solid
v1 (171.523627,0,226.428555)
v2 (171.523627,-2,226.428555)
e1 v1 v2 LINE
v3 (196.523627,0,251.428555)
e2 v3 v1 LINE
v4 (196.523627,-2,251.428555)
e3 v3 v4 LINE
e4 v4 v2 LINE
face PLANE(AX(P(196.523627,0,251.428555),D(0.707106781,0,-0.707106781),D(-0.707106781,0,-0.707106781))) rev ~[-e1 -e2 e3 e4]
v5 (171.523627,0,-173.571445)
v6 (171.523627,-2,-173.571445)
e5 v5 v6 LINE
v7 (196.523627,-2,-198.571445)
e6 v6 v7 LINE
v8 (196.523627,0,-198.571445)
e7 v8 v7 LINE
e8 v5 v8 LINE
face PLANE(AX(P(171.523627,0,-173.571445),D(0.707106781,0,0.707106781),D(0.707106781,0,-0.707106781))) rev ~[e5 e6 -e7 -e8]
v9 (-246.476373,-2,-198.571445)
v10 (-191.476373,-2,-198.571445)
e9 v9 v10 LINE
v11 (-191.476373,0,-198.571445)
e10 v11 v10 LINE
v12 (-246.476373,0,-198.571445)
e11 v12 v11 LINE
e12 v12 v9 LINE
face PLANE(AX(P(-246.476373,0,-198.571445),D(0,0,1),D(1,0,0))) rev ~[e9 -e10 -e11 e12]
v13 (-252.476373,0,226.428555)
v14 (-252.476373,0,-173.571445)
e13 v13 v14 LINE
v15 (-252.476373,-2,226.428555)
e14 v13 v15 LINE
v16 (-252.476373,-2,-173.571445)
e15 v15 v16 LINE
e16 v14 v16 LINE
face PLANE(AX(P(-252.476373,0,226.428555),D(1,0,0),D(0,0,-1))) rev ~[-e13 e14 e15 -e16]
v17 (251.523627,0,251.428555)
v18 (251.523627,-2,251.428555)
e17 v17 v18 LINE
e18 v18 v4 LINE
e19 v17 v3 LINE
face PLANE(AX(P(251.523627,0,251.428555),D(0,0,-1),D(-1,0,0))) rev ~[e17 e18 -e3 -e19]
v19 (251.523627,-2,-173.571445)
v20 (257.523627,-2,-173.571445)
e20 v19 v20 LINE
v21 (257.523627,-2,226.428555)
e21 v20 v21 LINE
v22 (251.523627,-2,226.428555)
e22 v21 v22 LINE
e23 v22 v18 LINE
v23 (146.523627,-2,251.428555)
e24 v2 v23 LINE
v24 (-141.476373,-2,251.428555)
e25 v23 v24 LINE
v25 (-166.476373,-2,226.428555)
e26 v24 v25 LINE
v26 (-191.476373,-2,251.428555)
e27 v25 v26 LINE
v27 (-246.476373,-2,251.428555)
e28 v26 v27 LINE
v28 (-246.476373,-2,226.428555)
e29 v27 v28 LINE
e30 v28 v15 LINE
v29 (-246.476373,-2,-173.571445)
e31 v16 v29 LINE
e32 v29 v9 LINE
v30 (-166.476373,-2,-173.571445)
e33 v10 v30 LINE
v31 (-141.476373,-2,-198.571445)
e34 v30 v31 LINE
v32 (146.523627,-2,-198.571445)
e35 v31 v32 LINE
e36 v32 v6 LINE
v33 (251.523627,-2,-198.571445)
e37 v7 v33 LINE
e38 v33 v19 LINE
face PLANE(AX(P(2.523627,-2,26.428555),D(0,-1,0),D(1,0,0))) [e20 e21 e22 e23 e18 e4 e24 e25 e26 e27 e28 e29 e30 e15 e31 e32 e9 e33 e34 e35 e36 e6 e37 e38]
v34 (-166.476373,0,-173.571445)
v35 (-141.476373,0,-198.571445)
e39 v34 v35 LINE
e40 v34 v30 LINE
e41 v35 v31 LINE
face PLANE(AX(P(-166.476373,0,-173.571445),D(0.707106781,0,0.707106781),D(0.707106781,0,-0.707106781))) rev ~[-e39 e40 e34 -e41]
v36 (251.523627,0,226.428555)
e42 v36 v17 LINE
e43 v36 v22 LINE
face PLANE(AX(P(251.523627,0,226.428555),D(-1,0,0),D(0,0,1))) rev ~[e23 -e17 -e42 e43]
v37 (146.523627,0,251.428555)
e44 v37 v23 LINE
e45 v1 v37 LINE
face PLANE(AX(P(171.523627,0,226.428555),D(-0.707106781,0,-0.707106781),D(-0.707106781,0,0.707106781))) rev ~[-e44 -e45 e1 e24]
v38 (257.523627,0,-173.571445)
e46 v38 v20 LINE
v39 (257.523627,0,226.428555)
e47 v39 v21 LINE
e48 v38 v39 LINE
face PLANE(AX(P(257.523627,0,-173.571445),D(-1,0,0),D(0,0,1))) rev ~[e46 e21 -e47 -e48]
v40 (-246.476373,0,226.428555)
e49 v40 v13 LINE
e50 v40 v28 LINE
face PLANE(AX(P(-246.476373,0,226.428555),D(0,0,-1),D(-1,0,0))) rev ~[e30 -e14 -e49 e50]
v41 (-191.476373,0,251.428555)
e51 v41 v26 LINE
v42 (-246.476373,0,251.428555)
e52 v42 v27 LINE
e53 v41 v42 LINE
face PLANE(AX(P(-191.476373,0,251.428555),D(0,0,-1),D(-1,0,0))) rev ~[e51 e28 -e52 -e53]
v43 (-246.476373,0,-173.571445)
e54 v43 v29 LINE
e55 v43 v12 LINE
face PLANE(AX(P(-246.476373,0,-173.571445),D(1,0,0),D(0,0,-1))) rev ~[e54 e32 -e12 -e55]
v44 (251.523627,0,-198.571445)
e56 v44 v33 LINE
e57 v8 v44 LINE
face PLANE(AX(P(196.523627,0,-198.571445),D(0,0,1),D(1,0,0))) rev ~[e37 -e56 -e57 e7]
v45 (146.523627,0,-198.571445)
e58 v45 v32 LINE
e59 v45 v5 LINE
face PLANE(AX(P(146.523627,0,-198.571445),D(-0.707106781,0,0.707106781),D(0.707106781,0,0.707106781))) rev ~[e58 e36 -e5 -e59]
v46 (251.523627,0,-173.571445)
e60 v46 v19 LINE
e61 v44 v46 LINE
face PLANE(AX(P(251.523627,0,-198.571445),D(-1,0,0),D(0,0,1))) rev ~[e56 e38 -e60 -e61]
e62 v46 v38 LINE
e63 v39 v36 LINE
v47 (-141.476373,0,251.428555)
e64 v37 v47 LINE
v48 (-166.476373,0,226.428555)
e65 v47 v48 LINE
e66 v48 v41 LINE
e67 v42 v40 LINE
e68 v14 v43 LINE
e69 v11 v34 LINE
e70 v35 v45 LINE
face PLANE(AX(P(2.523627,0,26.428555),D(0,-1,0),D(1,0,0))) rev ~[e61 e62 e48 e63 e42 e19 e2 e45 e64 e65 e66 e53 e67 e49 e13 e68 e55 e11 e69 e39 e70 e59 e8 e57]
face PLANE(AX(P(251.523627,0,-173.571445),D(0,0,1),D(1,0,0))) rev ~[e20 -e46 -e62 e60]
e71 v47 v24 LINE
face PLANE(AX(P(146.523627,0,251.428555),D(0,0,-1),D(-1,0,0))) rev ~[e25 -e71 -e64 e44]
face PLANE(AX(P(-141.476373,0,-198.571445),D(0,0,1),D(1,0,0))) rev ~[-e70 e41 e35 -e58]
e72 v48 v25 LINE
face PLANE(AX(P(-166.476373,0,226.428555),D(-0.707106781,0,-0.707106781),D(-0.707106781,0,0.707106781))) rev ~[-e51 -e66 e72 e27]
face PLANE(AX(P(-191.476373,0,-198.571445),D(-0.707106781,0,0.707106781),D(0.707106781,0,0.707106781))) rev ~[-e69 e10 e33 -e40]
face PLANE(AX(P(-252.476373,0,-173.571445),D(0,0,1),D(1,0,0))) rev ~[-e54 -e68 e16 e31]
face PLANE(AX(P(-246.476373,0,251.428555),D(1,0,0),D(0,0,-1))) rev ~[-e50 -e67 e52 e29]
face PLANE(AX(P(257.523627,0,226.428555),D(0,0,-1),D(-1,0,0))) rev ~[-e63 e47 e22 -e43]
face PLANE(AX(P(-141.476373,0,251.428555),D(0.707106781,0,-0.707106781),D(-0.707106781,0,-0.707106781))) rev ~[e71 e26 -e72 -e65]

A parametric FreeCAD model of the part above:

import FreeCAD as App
import Part
import Sketcher

doc = App.newDocument("Part")
params = doc.addObject("Spreadsheet::Sheet", "Params")
for row, (alias, value) in enumerate([
    ("sketch1_width", "55 mm"),
    ("sketch1_width2", "6 mm"),
    ("sketch1_width3", "288 mm"),
    ("sketch1_height", "25 mm"),
    ("sketch1_height2", "400 mm"),
    ("pad1_length", "2 mm"),
], start=1):
    params.set(f"A{row}", alias)
    params.set(f"B{row}", "=" + value)
    params.setAlias(f"B{row}", alias)

body = doc.addObject("PartDesign::Body", "Body")

# Sketch on XZ plane
sketch1 = doc.addObject("Sketcher::SketchObject", "Sketch")
body.addObject(sketch1)
sketch1.AttachmentSupport = (doc.XZ_Plane, [""])
sketch1.MapMode = "FlatFace"
sketch1.addGeometry(Part.LineSegment(App.Vector(-191.476373, 251.428555, 0), App.Vector(-246.476373, 251.428555, 0)), False)
sketch1.addGeometry(Part.LineSegment(App.Vector(-246.476373, 251.428555, 0), App.Vector(-246.476373, 226.428555, 0)), False)
sketch1.addGeometry(Part.LineSegment(App.Vector(-246.476373, 226.428555, 0), App.Vector(-252.476373, 226.428555, 0)), False)
sketch1.addGeometry(Part.LineSegment(App.Vector(-252.476373, 226.428555, 0), App.Vector(-252.476373, -173.571445, 0)), False)
sketch1.addGeometry(Part.LineSegment(App.Vector(-252.476373, -173.571445, 0), App.Vector(-246.476373, -173.571445, 0)), False)
sketch1.addGeometry(Part.LineSegment(App.Vector(-246.476373, -173.571445, 0), App.Vector(-246.476373, -198.571445, 0)), False)
sketch1.addGeometry(Part.LineSegment(App.Vector(-246.476373, -198.571445, 0), App.Vector(-191.476373, -198.571445, 0)), False)
sketch1.addGeometry(Part.LineSegment(App.Vector(-191.476373, -198.571445, 0), App.Vector(-166.476373, -173.571445, 0)), False)
sketch1.addGeometry(Part.LineSegment(App.Vector(-166.476373, -173.571445, 0), App.Vector(-141.476373, -198.571445, 0)), False)
sketch1.addGeometry(Part.LineSegment(App.Vector(-141.476373, -198.571445, 0), App.Vector(146.523627, -198.571445, 0)), False)
sketch1.addGeometry(Part.LineSegment(App.Vector(146.523627, -198.571445, 0), App.Vector(171.523627, -173.571445, 0)), False)
sketch1.addGeometry(Part.LineSegment(App.Vector(171.523627, -173.571445, 0), App.Vector(196.523627, -198.571445, 0)), False)
sketch1.addGeometry(Part.LineSegment(App.Vector(196.523627, -198.571445, 0), App.Vector(251.523627, -198.571445, 0)), False)
sketch1.addGeometry(Part.LineSegment(App.Vector(251.523627, -198.571445, 0), App.Vector(251.523627, -173.571445, 0)), False)
sketch1.addGeometry(Part.LineSegment(App.Vector(251.523627, -173.571445, 0), App.Vector(257.523627, -173.571445, 0)), False)
sketch1.addGeometry(Part.LineSegment(App.Vector(257.523627, -173.571445, 0), App.Vector(257.523627, 226.428555, 0)), False)
sketch1.addGeometry(Part.LineSegment(App.Vector(257.523627, 226.428555, 0), App.Vector(251.523627, 226.428555, 0)), False)
sketch1.addGeometry(Part.LineSegment(App.Vector(251.523627, 226.428555, 0), App.Vector(251.523627, 251.428555, 0)), False)
sketch1.addGeometry(Part.LineSegment(App.Vector(251.523627, 251.428555, 0), App.Vector(196.523627, 251.428555, 0)), False)
sketch1.addGeometry(Part.LineSegment(App.Vector(196.523627, 251.428555, 0), App.Vector(171.523627, 226.428555, 0)), False)
sketch1.addGeometry(Part.LineSegment(App.Vector(171.523627, 226.428555, 0), App.Vector(146.523627, 251.428555, 0)), False)
sketch1.addGeometry(Part.LineSegment(App.Vector(146.523627, 251.428555, 0), App.Vector(-141.476373, 251.428555, 0)), False)
sketch1.addGeometry(Part.LineSegment(App.Vector(-141.476373, 251.428555, 0), App.Vector(-166.476373, 226.428555, 0)), False)
sketch1.addGeometry(Part.LineSegment(App.Vector(-166.476373, 226.428555, 0), App.Vector(-191.476373, 251.428555, 0)), False)
sketch1.addConstraint(Sketcher.Constraint("Coincident", 0, 2, 1, 1))
sketch1.addConstraint(Sketcher.Constraint("Coincident", 1, 2, 2, 1))
sketch1.addConstraint(Sketcher.Constraint("Coincident", 2, 2, 3, 1))
sketch1.addConstraint(Sketcher.Constraint("Coincident", 3, 2, 4, 1))
sketch1.addConstraint(Sketcher.Constraint("Coincident", 4, 2, 5, 1))
sketch1.addConstraint(Sketcher.Constraint("Coincident", 5, 2, 6, 1))
sketch1.addConstraint(Sketcher.Constraint("Coincident", 6, 2, 7, 1))
sketch1.addConstraint(Sketcher.Constraint("Coincident", 7, 2, 8, 1))
sketch1.addConstraint(Sketcher.Constraint("Coincident", 8, 2, 9, 1))
sketch1.addConstraint(Sketcher.Constraint("Coincident", 9, 2, 10, 1))
sketch1.addConstraint(Sketcher.Constraint("Coincident", 10, 2, 11, 1))
sketch1.addConstraint(Sketcher.Constraint("Coincident", 11, 2, 12, 1))
sketch1.addConstraint(Sketcher.Constraint("Coincident", 12, 2, 13, 1))
sketch1.addConstraint(Sketcher.Constraint("Coincident", 13, 2, 14, 1))
sketch1.addConstraint(Sketcher.Constraint("Coincident", 14, 2, 15, 1))
sketch1.addConstraint(Sketcher.Constraint("Coincident", 15, 2, 16, 1))
sketch1.addConstraint(Sketcher.Constraint("Coincident", 16, 2, 17, 1))
sketch1.addConstraint(Sketcher.Constraint("Coincident", 17, 2, 18, 1))
sketch1.addConstraint(Sketcher.Constraint("Coincident", 18, 2, 19, 1))
sketch1.addConstraint(Sketcher.Constraint("Coincident", 19, 2, 20, 1))
sketch1.addConstraint(Sketcher.Constraint("Coincident", 20, 2, 21, 1))
sketch1.addConstraint(Sketcher.Constraint("Coincident", 21, 2, 22, 1))
sketch1.addConstraint(Sketcher.Constraint("Coincident", 22, 2, 23, 1))
sketch1.addConstraint(Sketcher.Constraint("Coincident", 23, 2, 0, 1))
sketch1.addConstraint(Sketcher.Constraint("Horizontal", 0))
sketch1.addConstraint(Sketcher.Constraint("Vertical", 1))
sketch1.addConstraint(Sketcher.Constraint("Horizontal", 2))
sketch1.addConstraint(Sketcher.Constraint("Vertical", 3))
sketch1.addConstraint(Sketcher.Constraint("Horizontal", 4))
sketch1.addConstraint(Sketcher.Constraint("Vertical", 5))
sketch1.addConstraint(Sketcher.Constraint("Horizontal", 6))
sketch1.addConstraint(Sketcher.Constraint("Horizontal", 9))
sketch1.addConstraint(Sketcher.Constraint("Horizontal", 12))
sketch1.addConstraint(Sketcher.Constraint("Vertical", 13))
sketch1.addConstraint(Sketcher.Constraint("Horizontal", 14))
sketch1.addConstraint(Sketcher.Constraint("Vertical", 15))
sketch1.addConstraint(Sketcher.Constraint("Horizontal", 16))
sketch1.addConstraint(Sketcher.Constraint("Vertical", 17))
sketch1.addConstraint(Sketcher.Constraint("Horizontal", 18))
sketch1.addConstraint(Sketcher.Constraint("Horizontal", 21))
sketch1.addConstraint(Sketcher.Constraint("Perpendicular", 7, 8))
sketch1.addConstraint(Sketcher.Constraint("Perpendicular", 8, 10))
sketch1.addConstraint(Sketcher.Constraint("Perpendicular", 10, 11))
sketch1.addConstraint(Sketcher.Constraint("Perpendicular", 11, 19))
sketch1.addConstraint(Sketcher.Constraint("Perpendicular", 19, 20))
sketch1.addConstraint(Sketcher.Constraint("Perpendicular", 20, 22))
sketch1.addConstraint(Sketcher.Constraint("Perpendicular", 22, 23))
sketch1.addConstraint(Sketcher.Constraint("Horizontal", 4, 2, 7, 2))
sketch1.addConstraint(Sketcher.Constraint("Horizontal", 6, 2, 8, 2))
sketch1.addConstraint(Sketcher.Constraint("Horizontal", 7, 2, 10, 2))
sketch1.addConstraint(Sketcher.Constraint("Horizontal", 9, 2, 11, 2))
sketch1.addConstraint(Sketcher.Constraint("Horizontal", 10, 2, 13, 2))
sketch1.addConstraint(Sketcher.Constraint("Horizontal", 2, 2, 15, 2))
sketch1.addConstraint(Sketcher.Constraint("Horizontal", 0, 2, 17, 2))
sketch1.addConstraint(Sketcher.Constraint("Horizontal", 16, 2, 19, 2))
sketch1.addConstraint(Sketcher.Constraint("Horizontal", 18, 2, 20, 2))
sketch1.addConstraint(Sketcher.Constraint("Horizontal", 19, 2, 22, 2))
sketch1.addConstraint(Sketcher.Constraint("Vertical", 1, 2, 4, 2))
sketch1.addConstraint(Sketcher.Constraint("Vertical", 13, 2, 16, 2))
sketch1.addConstraint(Sketcher.Constraint("Vertical", 11, 2, 18, 2))
sketch1.addConstraint(Sketcher.Constraint("Vertical", 10, 2, 19, 2))
sketch1.addConstraint(Sketcher.Constraint("Vertical", 9, 2, 20, 2))
sketch1.addConstraint(Sketcher.Constraint("Vertical", 8, 2, 21, 2))
sketch1.addConstraint(Sketcher.Constraint("Equal", 6, 12))
sketch1.addConstraint(Sketcher.Constraint("Equal", 4, 14))
sketch1.addConstraint(Sketcher.Constraint("DistanceX", 0, 2, 0, 1, 55.0))
sketch1.addConstraint(Sketcher.Constraint("DistanceX", 2, 2, 2, 1, 6.0))
sketch1.addConstraint(Sketcher.Constraint("DistanceX", 9, 1, 9, 2, 288.0))
sketch1.addConstraint(Sketcher.Constraint("DistanceY", 1, 2, 1, 1, 25.0))
sketch1.addConstraint(Sketcher.Constraint("DistanceY", 3, 2, 3, 1, 400.0))
sketch1.addConstraint(Sketcher.Constraint("DistanceX", 0, 2, -1, 1, 246.476373))
sketch1.addConstraint(Sketcher.Constraint("DistanceY", -1, 1, 0, 2, 251.428555))
sketch1.setExpression("Constraints[65]", "Params.sketch1_width")
sketch1.setExpression("Constraints[66]", "Params.sketch1_width2")
sketch1.setExpression("Constraints[67]", "Params.sketch1_width3")
sketch1.setExpression("Constraints[68]", "Params.sketch1_height")
sketch1.setExpression("Constraints[69]", "Params.sketch1_height2")
pad1 = doc.addObject("PartDesign::Pad", "Pad")
body.addObject(pad1)
pad1.Profile = sketch1
pad1.setExpression("Length", "Params.pad1_length")

doc.recompute()
